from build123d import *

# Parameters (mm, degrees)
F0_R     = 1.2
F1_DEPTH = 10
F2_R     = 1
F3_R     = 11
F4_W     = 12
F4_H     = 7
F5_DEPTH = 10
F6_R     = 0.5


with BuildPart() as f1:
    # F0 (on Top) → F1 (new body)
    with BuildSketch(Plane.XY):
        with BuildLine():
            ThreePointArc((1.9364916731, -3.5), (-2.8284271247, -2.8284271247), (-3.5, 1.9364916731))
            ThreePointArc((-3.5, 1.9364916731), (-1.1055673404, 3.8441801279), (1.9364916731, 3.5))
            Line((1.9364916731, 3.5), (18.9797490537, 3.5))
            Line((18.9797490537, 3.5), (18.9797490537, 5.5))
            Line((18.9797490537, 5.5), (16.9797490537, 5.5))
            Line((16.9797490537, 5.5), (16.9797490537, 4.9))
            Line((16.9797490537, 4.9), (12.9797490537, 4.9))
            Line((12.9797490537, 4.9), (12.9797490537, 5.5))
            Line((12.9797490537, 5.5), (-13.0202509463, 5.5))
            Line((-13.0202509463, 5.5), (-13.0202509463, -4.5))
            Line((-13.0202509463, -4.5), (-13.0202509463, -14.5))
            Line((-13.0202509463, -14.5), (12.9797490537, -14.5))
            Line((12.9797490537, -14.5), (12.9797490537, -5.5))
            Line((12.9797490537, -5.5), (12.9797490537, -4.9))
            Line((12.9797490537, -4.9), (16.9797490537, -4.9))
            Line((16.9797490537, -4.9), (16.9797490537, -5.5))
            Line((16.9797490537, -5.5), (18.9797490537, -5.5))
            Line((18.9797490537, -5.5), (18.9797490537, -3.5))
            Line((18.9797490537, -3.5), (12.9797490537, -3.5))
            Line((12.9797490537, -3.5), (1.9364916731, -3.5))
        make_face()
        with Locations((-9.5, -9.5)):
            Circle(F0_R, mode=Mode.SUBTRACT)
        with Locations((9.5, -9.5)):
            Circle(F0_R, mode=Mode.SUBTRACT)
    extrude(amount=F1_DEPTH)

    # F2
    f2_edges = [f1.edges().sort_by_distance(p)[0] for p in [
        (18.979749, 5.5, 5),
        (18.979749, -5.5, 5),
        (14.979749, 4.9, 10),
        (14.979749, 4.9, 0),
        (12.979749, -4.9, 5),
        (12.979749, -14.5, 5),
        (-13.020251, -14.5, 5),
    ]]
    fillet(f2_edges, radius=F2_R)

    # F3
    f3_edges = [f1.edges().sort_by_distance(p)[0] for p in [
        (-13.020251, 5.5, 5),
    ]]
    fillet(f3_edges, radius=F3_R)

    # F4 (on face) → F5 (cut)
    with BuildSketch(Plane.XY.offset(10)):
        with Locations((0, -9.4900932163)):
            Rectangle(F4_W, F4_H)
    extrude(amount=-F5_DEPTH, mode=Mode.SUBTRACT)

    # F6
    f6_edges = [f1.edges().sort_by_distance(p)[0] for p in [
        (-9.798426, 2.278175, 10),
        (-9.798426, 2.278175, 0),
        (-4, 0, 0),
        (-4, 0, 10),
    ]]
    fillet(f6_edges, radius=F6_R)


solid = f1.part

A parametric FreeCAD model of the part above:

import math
import FreeCAD as App
import Part
import Sketcher
from FreeCAD import Vector


def edges_at(feature, points):
    """Names of the edges that pass closest to the given points."""
    edges = feature.Shape.Edges
    near = lambda p: min(range(len(edges)), key=lambda i: edges[i].distToShape(Part.Vertex(*p))[0])
    return sorted({f"Edge{near(p) + 1}" for p in points})

doc = App.newDocument("Part")
body = doc.addObject("PartDesign::Body", "Body")

# Sketch on XY plane
sketch1 = doc.addObject("Sketcher::SketchObject", "Sketch")
body.addObject(sketch1)
sketch1.AttachmentSupport = (doc.XY_Plane, [""])
sketch1.MapMode = "FlatFace"
sketch1.addGeometry(Part.ArcOfCircle(Part.Circle(Vector(0, 0, 0), Vector(0, 0, 1), 4), math.radians(151), math.radians(299)), False)
sketch1.addGeometry(Part.ArcOfCircle(Part.Circle(Vector(0, 0, 0), Vector(0, 0, 1), 4), math.radians(61), math.radians(151)), False)
sketch1.addGeometry(Part.LineSegment(Vector(1.9, 3.5, 0), Vector(19, 3.5, 0)), False)
sketch1.addGeometry(Part.LineSegment(Vector(19, 3.5, 0), Vector(19, 5.5, 0)), False)
sketch1.addGeometry(Part.LineSegment(Vector(19, 5.5, 0), Vector(17, 5.5, 0)), False)
sketch1.addGeometry(Part.LineSegment(Vector(17, 5.5, 0), Vector(17, 4.9, 0)), False)
sketch1.addGeometry(Part.LineSegment(Vector(17, 4.9, 0), Vector(13, 4.9, 0)), False)
sketch1.addGeometry(Part.LineSegment(Vector(13, 4.9, 0), Vector(13, 5.5, 0)), False)
sketch1.addGeometry(Part.LineSegment(Vector(13, 5.5, 0), Vector(-13, 5.5, 0)), False)
sketch1.addGeometry(Part.LineSegment(Vector(-13, 5.5, 0), Vector(-13, -14.5, 0)), False)
sketch1.addGeometry(Part.LineSegment(Vector(-13, -14.5, 0), Vector(13, -14.5, 0)), False)
sketch1.addGeometry(Part.LineSegment(Vector(13, -14.5, 0), Vector(13, -4.9, 0)), False)
sketch1.addGeometry(Part.LineSegment(Vector(13, -4.9, 0), Vector(17, -4.9, 0)), False)
sketch1.addGeometry(Part.LineSegment(Vector(17, -4.9, 0), Vector(17, -5.5, 0)), False)
sketch1.addGeometry(Part.LineSegment(Vector(17, -5.5, 0), Vector(19, -5.5, 0)), False)
sketch1.addGeometry(Part.LineSegment(Vector(19, -5.5, 0), Vector(19, -3.5, 0)), False)
sketch1.addGeometry(Part.LineSegment(Vector(19, -3.5, 0), Vector(1.9, -3.5, 0)), False)
sketch1.addGeometry(Part.Circle(Vector(-9.5, -9.5, 0), Vector(0, 0, 1), 1.2), False)
sketch1.addGeometry(Part.Circle(Vector(9.5, -9.5, 0), Vector(0, 0, 1), 1.2), False)
sketch1.addConstraint(Sketcher.Constraint("Tangent", 0, 1, 1, 2))
sketch1.addConstraint(Sketcher.Constraint("Coincident", 1, 1, 2, 1))
sketch1.addConstraint(Sketcher.Constraint("Coincident", 2, 2, 3, 1))
sketch1.addConstraint(Sketcher.Constraint("Coincident", 3, 2, 4, 1))
sketch1.addConstraint(Sketcher.Constraint("Coincident", 4, 2, 5, 1))
sketch1.addConstraint(Sketcher.Constraint("Coincident", 5, 2, 6, 1))
sketch1.addConstraint(Sketcher.Constraint("Coincident", 6, 2, 7, 1))
sketch1.addConstraint(Sketcher.Constraint("Coincident", 7, 2, 8, 1))
sketch1.addConstraint(Sketcher.Constraint("Coincident", 8, 2, 9, 1))
sketch1.addConstraint(Sketcher.Constraint("Coincident", 9, 2, 10, 1))
sketch1.addConstraint(Sketcher.Constraint("Coincident", 10, 2, 11, 1))
sketch1.addConstraint(Sketcher.Constraint("Coincident", 11, 2, 12, 1))
sketch1.addConstraint(Sketcher.Constraint("Coincident", 12, 2, 13, 1))
sketch1.addConstraint(Sketcher.Constraint("Coincident", 13, 2, 14, 1))
sketch1.addConstraint(Sketcher.Constraint("Coincident", 14, 2, 15, 1))
sketch1.addConstraint(Sketcher.Constraint("Coincident", 15, 2, 16, 1))
sketch1.addConstraint(Sketcher.Constraint("Coincident", 16, 2, 0, 2))
sketch1.addConstraint(Sketcher.Constraint("Horizontal", 2))
sketch1.addConstraint(Sketcher.Constraint("Vertical", 3))
sketch1.addConstraint(Sketcher.Constraint("Horizontal", 4))
sketch1.addConstraint(Sketcher.Constraint("Vertical", 5))
sketch1.addConstraint(Sketcher.Constraint("Horizontal", 6))
sketch1.addConstraint(Sketcher.Constraint("Vertical", 7))
sketch1.addConstraint(Sketcher.Constraint("Horizontal", 8))
sketch1.addConstraint(Sketcher.Constraint("Vertical", 9))
sketch1.addConstraint(Sketcher.Constraint("Horizontal", 10))
sketch1.addConstraint(Sketcher.Constraint("Vertical", 11))
sketch1.addConstraint(Sketcher.Constraint("Horizontal", 12))
sketch1.addConstraint(Sketcher.Constraint("Vertical", 13))
sketch1.addConstraint(Sketcher.Constraint("Horizontal", 14))
sketch1.addConstraint(Sketcher.Constraint("Vertical", 15))
sketch1.addConstraint(Sketcher.Constraint("Horizontal", 16))
sketch1.addConstraint(Sketcher.Constraint("Coincident", 0, 3, -1, 1))
sketch1.addConstraint(Sketcher.Constraint("Equal", 0, 1))
sketch1.addConstraint(Sketcher.Constraint("Equal", 17, 18))
sketch1.addConstraint(Sketcher.Constraint("Symmetric", 17, 3, 18, 3, -2))
sketch1.addConstraint(Sketcher.Constraint("Symmetric", 6, 2, 11, 2, -1))
sketch1.addConstraint(Sketcher.Constraint("Symmetric", 4, 2, 13, 2, -1))
sketch1.addConstraint(Sketcher.Constraint("Symmetric", 2, 2, 15, 2, -1))
sketch1.addConstraint(Sketcher.Constraint("Horizontal", 4, 2, 7, 2))
sketch1.addConstraint(Sketcher.Constraint("Equal", 14, 3))
sketch1.addConstraint(Sketcher.Constraint("Radius", 0, 4.0))
sketch1.addConstraint(Sketcher.Constraint("Diameter", 17, 2.4))
sketch1.addConstraint(Sketcher.Constraint("DistanceX", 4, 2, 4, 1, 2.0))
sketch1.addConstraint(Sketcher.Constraint("DistanceX", 6, 2, 6, 1, 4.0))
sketch1.addConstraint(Sketcher.Constraint("DistanceX", 8, 2, 8, 1, 26.0))
sketch1.addConstraint(Sketcher.Constraint("DistanceY", 9, 2, 9, 1, 20.0))
sketch1.addConstraint(Sketcher.Constraint("DistanceY", 5, 2, 5, 1, 0.6))
sketch1.addConstraint(Sketcher.Constraint("DistanceY", 11, 1, 11, 2, 9.6))
sketch1.addConstraint(Sketcher.Constraint("DistanceX", 17, 3, 18, 3, 19.0))
sketch1.addConstraint(Sketcher.Constraint("DistanceX", 17, 3, 0, 1, 6.0))
sketch1.addConstraint(Sketcher.Constraint("DistanceY", 18, 3, 1, 1, 13.0))
sketch1.addConstraint(Sketcher.Constraint("DistanceX", 2, 1, 2, 2, 17.043257))
pad1 = doc.addObject("PartDesign::Pad", "Pad")
body.addObject(pad1)
pad1.Profile = sketch1
pad1.Length = 10
doc.recompute()

fillet = doc.addObject("PartDesign::Fillet", "Fillet")
body.addObject(fillet)
fillet.Base = (pad1, edges_at(pad1, [
    (18.98, 5.5, 5),
    (18.98, -5.5, 5),
    (14.98, 4.9, 10),
    (14.98, 4.9, 0),
    (12.98, -4.9, 5),
    (12.98, -14.5, 5),
    (-13.02, -14.5, 5),
]))
fillet.Radius = 1
doc.recompute()

fillet2 = doc.addObject("PartDesign::Fillet", "Fillet001")
body.addObject(fillet2)
fillet2.Base = (fillet, edges_at(fillet, [(-13.02, 5.5, 5)]))
fillet2.Radius = 11

# Sketch on XY plane
sketch2 = doc.addObject("Sketcher::SketchObject", "Sketch001")
body.addObject(sketch2)
sketch2.AttachmentSupport = (doc.XY_Plane, [""])
sketch2.MapMode = "FlatFace"
sketch2.AttachmentOffset = App.Placement(Vector(0, 0, 10), App.Rotation())
sketch2.addGeometry(Part.LineSegment(Vector(-6, -6, 0), Vector(-6, -13, 0)), False)
sketch2.addGeometry(Part.LineSegment(Vector(-6, -13, 0), Vector(6, -13, 0)), False)
sketch2.addGeometry(Part.LineSegment(Vector(6, -13, 0), Vector(6, -6, 0)), False)
sketch2.addGeometry(Part.LineSegment(Vector(6, -6, 0), Vector(-6, -6, 0)), False)
sketch2.addConstraint(Sketcher.Constraint("Coincident", 0, 2, 1, 1))
sketch2.addConstraint(Sketcher.Constraint("Coincident", 1, 2, 2, 1))
sketch2.addConstraint(Sketcher.Constraint("Coincident", 2, 2, 3, 1))
sketch2.addConstraint(Sketcher.Constraint("Coincident", 3, 2, 0, 1))
sketch2.addConstraint(Sketcher.Constraint("Vertical", 0))
sketch2.addConstraint(Sketcher.Constraint("Horizontal", 1))
sketch2.addConstraint(Sketcher.Constraint("Vertical", 2))
sketch2.addConstraint(Sketcher.Constraint("Horizontal", 3))
sketch2.addConstraint(Sketcher.Constraint("DistanceX", 1, 1, 1, 2, 12.0))
sketch2.addConstraint(Sketcher.Constraint("DistanceY", 0, 2, 0, 1, 7.0))
sketch2.addConstraint(Sketcher.Constraint("DistanceX", 0, 2, -1, 1, 6.0))
sketch2.addConstraint(Sketcher.Constraint("DistanceY", 0, 2, -1, 1, 12.990093))
pocket1 = doc.addObject("PartDesign::Pocket", "Pocket")
body.addObject(pocket1)
pocket1.Profile = sketch2
pocket1.Length = 10
doc.recompute()

fillet3 = doc.addObject("PartDesign::Fillet", "Fillet002")
body.addObject(fillet3)
fillet3.Base = (pocket1, edges_at(pocket1, [
    (-9.798, 2.278, 10),
    (-9.798, 2.278, 0),
    (-2.828, -2.828, 0),
    (-2.828, -2.828, 10),
]))
fillet3.Radius = 0.5

doc.recompute()
